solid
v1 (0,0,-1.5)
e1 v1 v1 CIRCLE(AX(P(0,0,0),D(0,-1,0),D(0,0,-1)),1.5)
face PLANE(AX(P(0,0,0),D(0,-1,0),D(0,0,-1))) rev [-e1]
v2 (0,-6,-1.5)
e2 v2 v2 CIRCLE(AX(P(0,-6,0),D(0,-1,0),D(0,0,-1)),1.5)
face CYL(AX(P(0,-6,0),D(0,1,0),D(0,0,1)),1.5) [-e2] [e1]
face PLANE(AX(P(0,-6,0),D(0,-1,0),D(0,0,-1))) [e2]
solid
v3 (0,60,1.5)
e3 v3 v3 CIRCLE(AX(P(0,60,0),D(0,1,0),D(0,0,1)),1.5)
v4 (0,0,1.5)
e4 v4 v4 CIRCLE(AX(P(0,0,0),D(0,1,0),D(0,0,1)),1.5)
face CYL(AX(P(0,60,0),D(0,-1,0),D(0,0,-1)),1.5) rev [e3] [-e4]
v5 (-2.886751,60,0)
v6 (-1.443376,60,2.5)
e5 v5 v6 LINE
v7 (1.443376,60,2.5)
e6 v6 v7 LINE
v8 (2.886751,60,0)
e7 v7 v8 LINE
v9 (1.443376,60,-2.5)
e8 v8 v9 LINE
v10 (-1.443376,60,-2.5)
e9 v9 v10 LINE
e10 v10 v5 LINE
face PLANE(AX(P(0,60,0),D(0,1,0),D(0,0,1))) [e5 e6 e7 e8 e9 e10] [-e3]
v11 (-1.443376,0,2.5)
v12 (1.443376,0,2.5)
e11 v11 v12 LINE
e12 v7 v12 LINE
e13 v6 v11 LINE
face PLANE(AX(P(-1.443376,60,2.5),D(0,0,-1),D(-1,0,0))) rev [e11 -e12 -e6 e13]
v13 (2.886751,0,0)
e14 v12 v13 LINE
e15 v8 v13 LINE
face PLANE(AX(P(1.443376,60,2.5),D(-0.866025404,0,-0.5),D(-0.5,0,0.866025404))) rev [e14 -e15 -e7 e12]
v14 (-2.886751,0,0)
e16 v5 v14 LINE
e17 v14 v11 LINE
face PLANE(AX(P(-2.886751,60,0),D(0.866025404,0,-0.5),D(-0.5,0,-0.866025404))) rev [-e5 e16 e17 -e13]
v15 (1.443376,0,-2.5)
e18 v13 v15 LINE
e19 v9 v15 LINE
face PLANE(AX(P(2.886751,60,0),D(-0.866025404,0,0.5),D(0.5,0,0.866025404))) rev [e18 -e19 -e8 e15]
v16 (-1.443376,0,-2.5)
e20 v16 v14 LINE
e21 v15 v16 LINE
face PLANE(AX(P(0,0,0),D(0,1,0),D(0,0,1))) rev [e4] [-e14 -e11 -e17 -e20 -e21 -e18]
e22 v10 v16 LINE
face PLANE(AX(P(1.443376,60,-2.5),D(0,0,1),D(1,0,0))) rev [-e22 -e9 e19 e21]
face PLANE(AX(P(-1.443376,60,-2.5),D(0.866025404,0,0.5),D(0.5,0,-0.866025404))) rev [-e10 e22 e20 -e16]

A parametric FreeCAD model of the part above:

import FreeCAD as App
import Part
import Sketcher
from FreeCAD import Vector
Q = App.Units.Quantity


def add_polygon(sketch, points):
    """Adds a closed chain of lines whose ends are joined by coincident constraints."""
    first, n = sketch.GeometryCount, len(points)
    for a, b in zip(points, points[1:] + points[:1]):
        sketch.addGeometry(Part.LineSegment(App.Vector(*a, 0), App.Vector(*b, 0)), False)
    for i in range(n):
        sketch.addConstraint(Sketcher.Constraint("Coincident", first + i, 2, first + (i + 1) % n, 1))

doc = App.newDocument("Part")
body = doc.addObject("PartDesign::Body", "Body")

# Sketch on XZ plane
sketch1 = body.newObject("Sketcher::SketchObject", "Sketch")
sketch1.AttachmentSupport = (doc.getObject("XZ_Plane"), [""])
sketch1.MapMode = "FlatFace"
add_polygon(sketch1, [(1.4, 2.5), (2.9, 0), (1.4, -2.5), (-1.4, -2.5), (-2.9, 0), (-1.4, 2.5)])  # lines 0-5
sketch1.addGeometry(Part.Circle(Vector(0, 0, 0), Vector(0, 0, 1), 1.5), False)  # 6
sketch1.addConstraint([
    Sketcher.Constraint("Horizontal", 2),
    Sketcher.Constraint("Horizontal", 5),
    Sketcher.Constraint("Coincident", 6, 3, -1, 1),
    Sketcher.Constraint("Symmetric", 0, 2, 3, 2, -1, 1),
    Sketcher.Constraint("Symmetric", 1, 2, 4, 2, -1, 1),
    Sketcher.Constraint("PointOnObject", 0, 2, -1),
    Sketcher.Constraint("Parallel", 0, 3),
    Sketcher.Constraint("Vertical", 2, 2, 4, 2),
    Sketcher.Constraint("Diameter", 6, Q("3 mm")),
    Sketcher.Constraint("Angle", 0, Q("-60 deg")),
    Sketcher.Constraint("DistanceY", 2, 2, 4, 2, Q("5 mm")),
    Sketcher.Constraint("DistanceX", 2, 2, 2, 1, Q("2.886751 mm")),
])
pad1 = body.newObject("PartDesign::Pad", "Pad")
pad1.Profile = sketch1
pad1.Length = 60
pad1.Reversed = True
body2 = doc.addObject("PartDesign::Body", "Body001")

# Sketch on XZ plane
sketch2 = body2.newObject("Sketcher::SketchObject", "Sketch001")
sketch2.AttachmentSupport = (doc.getObject("XZ_Plane001"), [""])
sketch2.MapMode = "FlatFace"
sketch2.addGeometry(Part.Circle(Vector(0, 0, 0), Vector(0, 0, 1), 1.5), False)
sketch2.addConstraint([
    Sketcher.Constraint("Coincident", 0, 3, -1, 1),
    Sketcher.Constraint("Diameter", 0, Q("3 mm")),
])
pad2 = body2.newObject("PartDesign::Pad", "Pad001")
pad2.Profile = sketch2
pad2.Length = 6

doc.recompute()
